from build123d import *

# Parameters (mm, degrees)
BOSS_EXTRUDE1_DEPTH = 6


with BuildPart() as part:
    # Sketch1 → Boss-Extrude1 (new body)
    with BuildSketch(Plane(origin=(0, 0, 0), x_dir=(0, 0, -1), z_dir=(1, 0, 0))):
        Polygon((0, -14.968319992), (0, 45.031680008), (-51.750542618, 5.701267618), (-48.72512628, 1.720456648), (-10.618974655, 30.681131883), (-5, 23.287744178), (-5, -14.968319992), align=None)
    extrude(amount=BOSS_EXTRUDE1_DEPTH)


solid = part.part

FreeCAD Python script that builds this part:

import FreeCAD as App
import Part
import Sketcher
from FreeCAD import Vector
Q = App.Units.Quantity

doc = App.newDocument("Part")
body = doc.addObject("PartDesign::Body", "Body")

sketch1 = body.newObject("Sketcher::SketchObject", "Sketch")
sketch1.AttachmentSupport = (doc.getObject("YZ_Plane"), [""])
sketch1.MapMode = "FlatFace"
sketch1.addGeometry(Part.LineSegment(Vector(-15, 0, 0), Vector(45, 0, 0)), False)
sketch1.addGeometry(Part.LineSegment(Vector(45, 0, 0), Vector(5.7, 51.8, 0)), False)
sketch1.addGeometry(Part.LineSegment(Vector(5.7, 51.8, 0), Vector(1.7, 48.7, 0)), False)
sketch1.addGeometry(Part.LineSegment(Vector(1.7, 48.7, 0), Vector(30.7, 10.6, 0)), False)
sketch1.addGeometry(Part.LineSegment(Vector(30.7, 10.6, 0), Vector(23.3, 5, 0)), False)
sketch1.addGeometry(Part.LineSegment(Vector(23.3, 5, 0), Vector(-15, 5, 0)), False)
sketch1.addGeometry(Part.LineSegment(Vector(-15, 5, 0), Vector(-15, 0, 0)), False)
sketch1.addConstraint(Sketcher.Constraint("Coincident", 0, 2, 1, 1))
sketch1.addConstraint(Sketcher.Constraint("Coincident", 1, 2, 2, 1))
sketch1.addConstraint(Sketcher.Constraint("Coincident", 2, 2, 3, 1))
sketch1.addConstraint(Sketcher.Constraint("Coincident", 3, 2, 4, 1))
sketch1.addConstraint(Sketcher.Constraint("Coincident", 4, 2, 5, 1))
sketch1.addConstraint(Sketcher.Constraint("Coincident", 5, 2, 6, 1))
sketch1.addConstraint(Sketcher.Constraint("Coincident", 6, 2, 0, 1))
sketch1.addConstraint(Sketcher.Constraint("Horizontal", 0))
sketch1.addConstraint(Sketcher.Constraint("Horizontal", 5))
sketch1.addConstraint(Sketcher.Constraint("Vertical", 6))
sketch1.addConstraint(Sketcher.Constraint("PointOnObject", 0, 2, -1))
sketch1.addConstraint(Sketcher.Constraint("Perpendicular", 1, 2))
sketch1.addConstraint(Sketcher.Constraint("Perpendicular", 2, 3))
sketch1.addConstraint(Sketcher.Constraint("Perpendicular", 3, 4))
sketch1.addConstraint(Sketcher.Constraint("DistanceX", 0, 1, 0, 2, Q("60 mm")))
sketch1.addConstraint(Sketcher.Constraint("DistanceY", 6, 2, 6, 1, Q("5 mm")))
sketch1.addConstraint(Sketcher.Constraint("Distance", 1, Q("65 mm")))
sketch1.addConstraint(Sketcher.Constraint("Distance", 2, Q("5 mm")))
sketch1.addConstraint(Sketcher.Constraint("DistanceX", 5, 2, 5, 1, Q("38.256064 mm")))
sketch1.addConstraint(Sketcher.Constraint("DistanceX", -1, 1, 0, 2, Q("45.03168 mm")))
sketch1.addConstraint(Sketcher.Constraint("DistanceX", -1, 1, 3, 2, Q("30.681132 mm")))
pad1 = body.newObject("PartDesign::Pad", "Pad")
pad1.Profile = sketch1
pad1.Length = 6

doc.recompute()
